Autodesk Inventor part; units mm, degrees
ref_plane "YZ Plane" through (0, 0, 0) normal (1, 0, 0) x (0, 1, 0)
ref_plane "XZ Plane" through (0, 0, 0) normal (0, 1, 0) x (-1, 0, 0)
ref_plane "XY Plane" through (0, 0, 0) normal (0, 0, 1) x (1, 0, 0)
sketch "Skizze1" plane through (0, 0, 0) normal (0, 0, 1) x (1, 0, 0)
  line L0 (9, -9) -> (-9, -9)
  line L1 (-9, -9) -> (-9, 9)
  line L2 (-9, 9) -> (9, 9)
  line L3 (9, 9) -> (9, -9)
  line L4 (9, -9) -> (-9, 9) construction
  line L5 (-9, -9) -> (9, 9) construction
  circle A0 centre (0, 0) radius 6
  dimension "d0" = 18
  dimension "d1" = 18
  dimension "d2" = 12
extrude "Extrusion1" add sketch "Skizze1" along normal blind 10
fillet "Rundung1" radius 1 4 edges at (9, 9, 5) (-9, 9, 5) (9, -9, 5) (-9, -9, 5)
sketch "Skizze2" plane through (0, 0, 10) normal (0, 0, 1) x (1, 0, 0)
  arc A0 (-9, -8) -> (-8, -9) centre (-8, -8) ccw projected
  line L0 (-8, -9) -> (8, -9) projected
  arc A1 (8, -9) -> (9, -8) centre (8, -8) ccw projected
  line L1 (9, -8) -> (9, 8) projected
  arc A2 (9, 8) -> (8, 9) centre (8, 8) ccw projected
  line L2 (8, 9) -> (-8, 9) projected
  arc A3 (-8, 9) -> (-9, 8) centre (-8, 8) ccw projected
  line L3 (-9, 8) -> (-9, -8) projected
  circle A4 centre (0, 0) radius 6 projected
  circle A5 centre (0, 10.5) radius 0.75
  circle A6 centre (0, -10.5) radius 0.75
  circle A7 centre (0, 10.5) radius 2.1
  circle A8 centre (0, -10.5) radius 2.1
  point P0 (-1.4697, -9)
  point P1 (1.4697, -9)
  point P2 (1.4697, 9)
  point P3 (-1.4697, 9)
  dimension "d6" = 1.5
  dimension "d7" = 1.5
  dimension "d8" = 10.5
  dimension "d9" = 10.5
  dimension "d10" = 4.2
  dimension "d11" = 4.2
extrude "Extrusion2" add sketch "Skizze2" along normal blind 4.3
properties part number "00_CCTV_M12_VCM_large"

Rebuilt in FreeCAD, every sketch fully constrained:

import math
import FreeCAD as App
import Part
import Sketcher
from FreeCAD import Vector
Q = App.Units.Quantity


def edges_at(feature, points):
    """Names of the edges that pass closest to the given points."""
    edges = feature.Shape.Edges
    near = lambda p: min(range(len(edges)), key=lambda i: edges[i].distToShape(Part.Vertex(*p))[0])
    return sorted({f"Edge{near(p) + 1}" for p in points})


def add_polygon(sketch, points):
    """Adds a closed chain of lines whose ends are joined by coincident constraints."""
    first, n = sketch.GeometryCount, len(points)
    for a, b in zip(points, points[1:] + points[:1]):
        sketch.addGeometry(Part.LineSegment(App.Vector(*a, 0), App.Vector(*b, 0)), False)
    for i in range(n):
        sketch.addConstraint(Sketcher.Constraint("Coincident", first + i, 2, first + (i + 1) % n, 1))

doc = App.newDocument("Part")
body = doc.addObject("PartDesign::Body", "Body")

sketch1 = body.newObject("Sketcher::SketchObject", "Sketch")
sketch1.AttachmentSupport = (doc.getObject("XY_Plane"), [""])
sketch1.MapMode = "FlatFace"
add_polygon(sketch1, [(-9, -9), (9, -9), (9, 9), (-9, 9)])
sketch1.addGeometry(Part.Circle(Vector(0, 0, 0), Vector(0, 0, 1), 6), False)
sketch1.addConstraint(Sketcher.Constraint("Horizontal", 0))
sketch1.addConstraint(Sketcher.Constraint("Vertical", 1))
sketch1.addConstraint(Sketcher.Constraint("Horizontal", 2))
sketch1.addConstraint(Sketcher.Constraint("Vertical", 3))
sketch1.addConstraint(Sketcher.Constraint("Coincident", 4, 3, -1, 1))
sketch1.addConstraint(Sketcher.Constraint("Symmetric", 0, 2, 2, 2, -1, 1))
sketch1.addConstraint(Sketcher.Constraint("Equal", 2, 1))
sketch1.addConstraint(Sketcher.Constraint("Diameter", 4, Q("12 mm")))
sketch1.addConstraint(Sketcher.Constraint("DistanceX", 0, 1, 0, 2, Q("18 mm")))
pad1 = body.newObject("PartDesign::Pad", "Pad")
pad1.Profile = sketch1
pad1.Length = 10
doc.recompute()

fillet = body.newObject("PartDesign::Fillet", "Fillet")
fillet.Base = (pad1, edges_at(pad1, [
    (9, 9, 5),
    (-9, 9, 5),
    (9, -9, 5),
    (-9, -9, 5),
]))
fillet.Radius = 1

sketch2 = body.newObject("Sketcher::SketchObject", "Sketch001")
sketch2.AttachmentSupport = (doc.getObject("XY_Plane"), [""])
sketch2.MapMode = "FlatFace"
sketch2.AttachmentOffset = App.Placement(Vector(0, 0, 10), App.Rotation())
sketch2.addGeometry(Part.LineSegment(Vector(-9, 8, 0), Vector(-9, -8, 0)), False)
sketch2.addGeometry(Part.ArcOfCircle(Part.Circle(Vector(-8, -8, 0), Vector(0, 0, 1), 1), math.radians(180), math.radians(270)), False)
sketch2.addGeometry(Part.LineSegment(Vector(-8, -9, 0), Vector(-1.5, -9, 0)), False)
sketch2.addGeometry(Part.ArcOfCircle(Part.Circle(Vector(0, -10.5, 0), Vector(0, 0, 1), 2.1), math.radians(134), math.radians(406)), False)
sketch2.addGeometry(Part.LineSegment(Vector(1.5, -9, 0), Vector(8, -9, 0)), False)
sketch2.addGeometry(Part.ArcOfCircle(Part.Circle(Vector(8, -8, 0), Vector(0, 0, 1), 1), math.radians(-90), math.radians(0)), False)
sketch2.addGeometry(Part.LineSegment(Vector(9, -8, 0), Vector(9, 8, 0)), False)
sketch2.addGeometry(Part.ArcOfCircle(Part.Circle(Vector(8, 8, 0), Vector(0, 0, 1), 1), math.radians(0), math.radians(90)), False)
sketch2.addGeometry(Part.LineSegment(Vector(8, 9, 0), Vector(1.5, 9, 0)), False)
sketch2.addGeometry(Part.ArcOfCircle(Part.Circle(Vector(0, 10.5, 0), Vector(0, 0, 1), 2.1), math.radians(-46), math.radians(226)), False)
sketch2.addGeometry(Part.LineSegment(Vector(-1.5, 9, 0), Vector(-8, 9, 0)), False)
sketch2.addGeometry(Part.ArcOfCircle(Part.Circle(Vector(-8, 8, 0), Vector(0, 0, 1), 1), math.radians(90), math.radians(180)), False)
sketch2.addGeometry(Part.Circle(Vector(0, 0, 0), Vector(0, 0, 1), 6), False)
sketch2.addGeometry(Part.Circle(Vector(0, 10.5, 0), Vector(0, 0, 1), 0.8), False)
sketch2.addGeometry(Part.Circle(Vector(0, -10.5, 0), Vector(0, 0, 1), 0.8), False)
sketch2.addConstraint(Sketcher.Constraint("Tangent", 0, 2, 1, 1))
sketch2.addConstraint(Sketcher.Constraint("Tangent", 1, 2, 2, 1))
sketch2.addConstraint(Sketcher.Constraint("Coincident", 2, 2, 3, 1))
sketch2.addConstraint(Sketcher.Constraint("Coincident", 3, 2, 4, 1))
sketch2.addConstraint(Sketcher.Constraint("Tangent", 4, 2, 5, 1))
sketch2.addConstraint(Sketcher.Constraint("Tangent", 5, 2, 6, 1))
sketch2.addConstraint(Sketcher.Constraint("Tangent", 6, 2, 7, 1))
sketch2.addConstraint(Sketcher.Constraint("Tangent", 7, 2, 8, 1))
sketch2.addConstraint(Sketcher.Constraint("Coincident", 8, 2, 9, 1))
sketch2.addConstraint(Sketcher.Constraint("Coincident", 9, 2, 10, 1))
sketch2.addConstraint(Sketcher.Constraint("Tangent", 10, 2, 11, 1))
sketch2.addConstraint(Sketcher.Constraint("Tangent", 11, 2, 0, 1))
sketch2.addConstraint(Sketcher.Constraint("Vertical", 0))
sketch2.addConstraint(Sketcher.Constraint("Horizontal", 2))
sketch2.addConstraint(Sketcher.Constraint("Horizontal", 4))
sketch2.addConstraint(Sketcher.Constraint("Vertical", 6))
sketch2.addConstraint(Sketcher.Constraint("Horizontal", 8))
sketch2.addConstraint(Sketcher.Constraint("Horizontal", 10))
sketch2.addConstraint(Sketcher.Constraint("Coincident", 12, 3, -1, 1))
sketch2.addConstraint(Sketcher.Constraint("Coincident", 13, 3, 9, 3))
sketch2.addConstraint(Sketcher.Constraint("Coincident", 14, 3, 3, 3))
sketch2.addConstraint(Sketcher.Constraint("Equal", 1, 5))
sketch2.addConstraint(Sketcher.Constraint("Equal", 5, 7))
sketch2.addConstraint(Sketcher.Constraint("Equal", 3, 9))
sketch2.addConstraint(Sketcher.Constraint("Equal", 7, 11))
sketch2.addConstraint(Sketcher.Constraint("Equal", 13, 14))
sketch2.addConstraint(Sketcher.Constraint("Symmetric", 1, 3, 7, 3, -1, 1))
sketch2.addConstraint(Sketcher.Constraint("Symmetric", 3, 3, 9, 3, -1, 1))
sketch2.addConstraint(Sketcher.Constraint("Symmetric", 2, 2, 3, 2, -2))
sketch2.addConstraint(Sketcher.Constraint("Horizontal", 7, 3, 11, 3))
sketch2.addConstraint(Sketcher.Constraint("Diameter", 13, Q("1.5 mm")))
sketch2.addConstraint(Sketcher.Constraint("Radius", 3, Q("2.1 mm")))
sketch2.addConstraint(Sketcher.Constraint("Diameter", 12, Q("12 mm")))
sketch2.addConstraint(Sketcher.Constraint("Radius", 1, Q("1 mm")))
sketch2.addConstraint(Sketcher.Constraint("DistanceY", 3, 3, -1, 1, Q("10.5 mm")))
sketch2.addConstraint(Sketcher.Constraint("DistanceY", 3, 3, 1, 2, Q("1.5 mm")))
sketch2.addConstraint(Sketcher.Constraint("DistanceX", 1, 3, -1, 1, Q("8 mm")))
pad2 = body.newObject("PartDesign::Pad", "Pad001")
pad2.Profile = sketch2
pad2.Length = 4.3

doc.recompute()
